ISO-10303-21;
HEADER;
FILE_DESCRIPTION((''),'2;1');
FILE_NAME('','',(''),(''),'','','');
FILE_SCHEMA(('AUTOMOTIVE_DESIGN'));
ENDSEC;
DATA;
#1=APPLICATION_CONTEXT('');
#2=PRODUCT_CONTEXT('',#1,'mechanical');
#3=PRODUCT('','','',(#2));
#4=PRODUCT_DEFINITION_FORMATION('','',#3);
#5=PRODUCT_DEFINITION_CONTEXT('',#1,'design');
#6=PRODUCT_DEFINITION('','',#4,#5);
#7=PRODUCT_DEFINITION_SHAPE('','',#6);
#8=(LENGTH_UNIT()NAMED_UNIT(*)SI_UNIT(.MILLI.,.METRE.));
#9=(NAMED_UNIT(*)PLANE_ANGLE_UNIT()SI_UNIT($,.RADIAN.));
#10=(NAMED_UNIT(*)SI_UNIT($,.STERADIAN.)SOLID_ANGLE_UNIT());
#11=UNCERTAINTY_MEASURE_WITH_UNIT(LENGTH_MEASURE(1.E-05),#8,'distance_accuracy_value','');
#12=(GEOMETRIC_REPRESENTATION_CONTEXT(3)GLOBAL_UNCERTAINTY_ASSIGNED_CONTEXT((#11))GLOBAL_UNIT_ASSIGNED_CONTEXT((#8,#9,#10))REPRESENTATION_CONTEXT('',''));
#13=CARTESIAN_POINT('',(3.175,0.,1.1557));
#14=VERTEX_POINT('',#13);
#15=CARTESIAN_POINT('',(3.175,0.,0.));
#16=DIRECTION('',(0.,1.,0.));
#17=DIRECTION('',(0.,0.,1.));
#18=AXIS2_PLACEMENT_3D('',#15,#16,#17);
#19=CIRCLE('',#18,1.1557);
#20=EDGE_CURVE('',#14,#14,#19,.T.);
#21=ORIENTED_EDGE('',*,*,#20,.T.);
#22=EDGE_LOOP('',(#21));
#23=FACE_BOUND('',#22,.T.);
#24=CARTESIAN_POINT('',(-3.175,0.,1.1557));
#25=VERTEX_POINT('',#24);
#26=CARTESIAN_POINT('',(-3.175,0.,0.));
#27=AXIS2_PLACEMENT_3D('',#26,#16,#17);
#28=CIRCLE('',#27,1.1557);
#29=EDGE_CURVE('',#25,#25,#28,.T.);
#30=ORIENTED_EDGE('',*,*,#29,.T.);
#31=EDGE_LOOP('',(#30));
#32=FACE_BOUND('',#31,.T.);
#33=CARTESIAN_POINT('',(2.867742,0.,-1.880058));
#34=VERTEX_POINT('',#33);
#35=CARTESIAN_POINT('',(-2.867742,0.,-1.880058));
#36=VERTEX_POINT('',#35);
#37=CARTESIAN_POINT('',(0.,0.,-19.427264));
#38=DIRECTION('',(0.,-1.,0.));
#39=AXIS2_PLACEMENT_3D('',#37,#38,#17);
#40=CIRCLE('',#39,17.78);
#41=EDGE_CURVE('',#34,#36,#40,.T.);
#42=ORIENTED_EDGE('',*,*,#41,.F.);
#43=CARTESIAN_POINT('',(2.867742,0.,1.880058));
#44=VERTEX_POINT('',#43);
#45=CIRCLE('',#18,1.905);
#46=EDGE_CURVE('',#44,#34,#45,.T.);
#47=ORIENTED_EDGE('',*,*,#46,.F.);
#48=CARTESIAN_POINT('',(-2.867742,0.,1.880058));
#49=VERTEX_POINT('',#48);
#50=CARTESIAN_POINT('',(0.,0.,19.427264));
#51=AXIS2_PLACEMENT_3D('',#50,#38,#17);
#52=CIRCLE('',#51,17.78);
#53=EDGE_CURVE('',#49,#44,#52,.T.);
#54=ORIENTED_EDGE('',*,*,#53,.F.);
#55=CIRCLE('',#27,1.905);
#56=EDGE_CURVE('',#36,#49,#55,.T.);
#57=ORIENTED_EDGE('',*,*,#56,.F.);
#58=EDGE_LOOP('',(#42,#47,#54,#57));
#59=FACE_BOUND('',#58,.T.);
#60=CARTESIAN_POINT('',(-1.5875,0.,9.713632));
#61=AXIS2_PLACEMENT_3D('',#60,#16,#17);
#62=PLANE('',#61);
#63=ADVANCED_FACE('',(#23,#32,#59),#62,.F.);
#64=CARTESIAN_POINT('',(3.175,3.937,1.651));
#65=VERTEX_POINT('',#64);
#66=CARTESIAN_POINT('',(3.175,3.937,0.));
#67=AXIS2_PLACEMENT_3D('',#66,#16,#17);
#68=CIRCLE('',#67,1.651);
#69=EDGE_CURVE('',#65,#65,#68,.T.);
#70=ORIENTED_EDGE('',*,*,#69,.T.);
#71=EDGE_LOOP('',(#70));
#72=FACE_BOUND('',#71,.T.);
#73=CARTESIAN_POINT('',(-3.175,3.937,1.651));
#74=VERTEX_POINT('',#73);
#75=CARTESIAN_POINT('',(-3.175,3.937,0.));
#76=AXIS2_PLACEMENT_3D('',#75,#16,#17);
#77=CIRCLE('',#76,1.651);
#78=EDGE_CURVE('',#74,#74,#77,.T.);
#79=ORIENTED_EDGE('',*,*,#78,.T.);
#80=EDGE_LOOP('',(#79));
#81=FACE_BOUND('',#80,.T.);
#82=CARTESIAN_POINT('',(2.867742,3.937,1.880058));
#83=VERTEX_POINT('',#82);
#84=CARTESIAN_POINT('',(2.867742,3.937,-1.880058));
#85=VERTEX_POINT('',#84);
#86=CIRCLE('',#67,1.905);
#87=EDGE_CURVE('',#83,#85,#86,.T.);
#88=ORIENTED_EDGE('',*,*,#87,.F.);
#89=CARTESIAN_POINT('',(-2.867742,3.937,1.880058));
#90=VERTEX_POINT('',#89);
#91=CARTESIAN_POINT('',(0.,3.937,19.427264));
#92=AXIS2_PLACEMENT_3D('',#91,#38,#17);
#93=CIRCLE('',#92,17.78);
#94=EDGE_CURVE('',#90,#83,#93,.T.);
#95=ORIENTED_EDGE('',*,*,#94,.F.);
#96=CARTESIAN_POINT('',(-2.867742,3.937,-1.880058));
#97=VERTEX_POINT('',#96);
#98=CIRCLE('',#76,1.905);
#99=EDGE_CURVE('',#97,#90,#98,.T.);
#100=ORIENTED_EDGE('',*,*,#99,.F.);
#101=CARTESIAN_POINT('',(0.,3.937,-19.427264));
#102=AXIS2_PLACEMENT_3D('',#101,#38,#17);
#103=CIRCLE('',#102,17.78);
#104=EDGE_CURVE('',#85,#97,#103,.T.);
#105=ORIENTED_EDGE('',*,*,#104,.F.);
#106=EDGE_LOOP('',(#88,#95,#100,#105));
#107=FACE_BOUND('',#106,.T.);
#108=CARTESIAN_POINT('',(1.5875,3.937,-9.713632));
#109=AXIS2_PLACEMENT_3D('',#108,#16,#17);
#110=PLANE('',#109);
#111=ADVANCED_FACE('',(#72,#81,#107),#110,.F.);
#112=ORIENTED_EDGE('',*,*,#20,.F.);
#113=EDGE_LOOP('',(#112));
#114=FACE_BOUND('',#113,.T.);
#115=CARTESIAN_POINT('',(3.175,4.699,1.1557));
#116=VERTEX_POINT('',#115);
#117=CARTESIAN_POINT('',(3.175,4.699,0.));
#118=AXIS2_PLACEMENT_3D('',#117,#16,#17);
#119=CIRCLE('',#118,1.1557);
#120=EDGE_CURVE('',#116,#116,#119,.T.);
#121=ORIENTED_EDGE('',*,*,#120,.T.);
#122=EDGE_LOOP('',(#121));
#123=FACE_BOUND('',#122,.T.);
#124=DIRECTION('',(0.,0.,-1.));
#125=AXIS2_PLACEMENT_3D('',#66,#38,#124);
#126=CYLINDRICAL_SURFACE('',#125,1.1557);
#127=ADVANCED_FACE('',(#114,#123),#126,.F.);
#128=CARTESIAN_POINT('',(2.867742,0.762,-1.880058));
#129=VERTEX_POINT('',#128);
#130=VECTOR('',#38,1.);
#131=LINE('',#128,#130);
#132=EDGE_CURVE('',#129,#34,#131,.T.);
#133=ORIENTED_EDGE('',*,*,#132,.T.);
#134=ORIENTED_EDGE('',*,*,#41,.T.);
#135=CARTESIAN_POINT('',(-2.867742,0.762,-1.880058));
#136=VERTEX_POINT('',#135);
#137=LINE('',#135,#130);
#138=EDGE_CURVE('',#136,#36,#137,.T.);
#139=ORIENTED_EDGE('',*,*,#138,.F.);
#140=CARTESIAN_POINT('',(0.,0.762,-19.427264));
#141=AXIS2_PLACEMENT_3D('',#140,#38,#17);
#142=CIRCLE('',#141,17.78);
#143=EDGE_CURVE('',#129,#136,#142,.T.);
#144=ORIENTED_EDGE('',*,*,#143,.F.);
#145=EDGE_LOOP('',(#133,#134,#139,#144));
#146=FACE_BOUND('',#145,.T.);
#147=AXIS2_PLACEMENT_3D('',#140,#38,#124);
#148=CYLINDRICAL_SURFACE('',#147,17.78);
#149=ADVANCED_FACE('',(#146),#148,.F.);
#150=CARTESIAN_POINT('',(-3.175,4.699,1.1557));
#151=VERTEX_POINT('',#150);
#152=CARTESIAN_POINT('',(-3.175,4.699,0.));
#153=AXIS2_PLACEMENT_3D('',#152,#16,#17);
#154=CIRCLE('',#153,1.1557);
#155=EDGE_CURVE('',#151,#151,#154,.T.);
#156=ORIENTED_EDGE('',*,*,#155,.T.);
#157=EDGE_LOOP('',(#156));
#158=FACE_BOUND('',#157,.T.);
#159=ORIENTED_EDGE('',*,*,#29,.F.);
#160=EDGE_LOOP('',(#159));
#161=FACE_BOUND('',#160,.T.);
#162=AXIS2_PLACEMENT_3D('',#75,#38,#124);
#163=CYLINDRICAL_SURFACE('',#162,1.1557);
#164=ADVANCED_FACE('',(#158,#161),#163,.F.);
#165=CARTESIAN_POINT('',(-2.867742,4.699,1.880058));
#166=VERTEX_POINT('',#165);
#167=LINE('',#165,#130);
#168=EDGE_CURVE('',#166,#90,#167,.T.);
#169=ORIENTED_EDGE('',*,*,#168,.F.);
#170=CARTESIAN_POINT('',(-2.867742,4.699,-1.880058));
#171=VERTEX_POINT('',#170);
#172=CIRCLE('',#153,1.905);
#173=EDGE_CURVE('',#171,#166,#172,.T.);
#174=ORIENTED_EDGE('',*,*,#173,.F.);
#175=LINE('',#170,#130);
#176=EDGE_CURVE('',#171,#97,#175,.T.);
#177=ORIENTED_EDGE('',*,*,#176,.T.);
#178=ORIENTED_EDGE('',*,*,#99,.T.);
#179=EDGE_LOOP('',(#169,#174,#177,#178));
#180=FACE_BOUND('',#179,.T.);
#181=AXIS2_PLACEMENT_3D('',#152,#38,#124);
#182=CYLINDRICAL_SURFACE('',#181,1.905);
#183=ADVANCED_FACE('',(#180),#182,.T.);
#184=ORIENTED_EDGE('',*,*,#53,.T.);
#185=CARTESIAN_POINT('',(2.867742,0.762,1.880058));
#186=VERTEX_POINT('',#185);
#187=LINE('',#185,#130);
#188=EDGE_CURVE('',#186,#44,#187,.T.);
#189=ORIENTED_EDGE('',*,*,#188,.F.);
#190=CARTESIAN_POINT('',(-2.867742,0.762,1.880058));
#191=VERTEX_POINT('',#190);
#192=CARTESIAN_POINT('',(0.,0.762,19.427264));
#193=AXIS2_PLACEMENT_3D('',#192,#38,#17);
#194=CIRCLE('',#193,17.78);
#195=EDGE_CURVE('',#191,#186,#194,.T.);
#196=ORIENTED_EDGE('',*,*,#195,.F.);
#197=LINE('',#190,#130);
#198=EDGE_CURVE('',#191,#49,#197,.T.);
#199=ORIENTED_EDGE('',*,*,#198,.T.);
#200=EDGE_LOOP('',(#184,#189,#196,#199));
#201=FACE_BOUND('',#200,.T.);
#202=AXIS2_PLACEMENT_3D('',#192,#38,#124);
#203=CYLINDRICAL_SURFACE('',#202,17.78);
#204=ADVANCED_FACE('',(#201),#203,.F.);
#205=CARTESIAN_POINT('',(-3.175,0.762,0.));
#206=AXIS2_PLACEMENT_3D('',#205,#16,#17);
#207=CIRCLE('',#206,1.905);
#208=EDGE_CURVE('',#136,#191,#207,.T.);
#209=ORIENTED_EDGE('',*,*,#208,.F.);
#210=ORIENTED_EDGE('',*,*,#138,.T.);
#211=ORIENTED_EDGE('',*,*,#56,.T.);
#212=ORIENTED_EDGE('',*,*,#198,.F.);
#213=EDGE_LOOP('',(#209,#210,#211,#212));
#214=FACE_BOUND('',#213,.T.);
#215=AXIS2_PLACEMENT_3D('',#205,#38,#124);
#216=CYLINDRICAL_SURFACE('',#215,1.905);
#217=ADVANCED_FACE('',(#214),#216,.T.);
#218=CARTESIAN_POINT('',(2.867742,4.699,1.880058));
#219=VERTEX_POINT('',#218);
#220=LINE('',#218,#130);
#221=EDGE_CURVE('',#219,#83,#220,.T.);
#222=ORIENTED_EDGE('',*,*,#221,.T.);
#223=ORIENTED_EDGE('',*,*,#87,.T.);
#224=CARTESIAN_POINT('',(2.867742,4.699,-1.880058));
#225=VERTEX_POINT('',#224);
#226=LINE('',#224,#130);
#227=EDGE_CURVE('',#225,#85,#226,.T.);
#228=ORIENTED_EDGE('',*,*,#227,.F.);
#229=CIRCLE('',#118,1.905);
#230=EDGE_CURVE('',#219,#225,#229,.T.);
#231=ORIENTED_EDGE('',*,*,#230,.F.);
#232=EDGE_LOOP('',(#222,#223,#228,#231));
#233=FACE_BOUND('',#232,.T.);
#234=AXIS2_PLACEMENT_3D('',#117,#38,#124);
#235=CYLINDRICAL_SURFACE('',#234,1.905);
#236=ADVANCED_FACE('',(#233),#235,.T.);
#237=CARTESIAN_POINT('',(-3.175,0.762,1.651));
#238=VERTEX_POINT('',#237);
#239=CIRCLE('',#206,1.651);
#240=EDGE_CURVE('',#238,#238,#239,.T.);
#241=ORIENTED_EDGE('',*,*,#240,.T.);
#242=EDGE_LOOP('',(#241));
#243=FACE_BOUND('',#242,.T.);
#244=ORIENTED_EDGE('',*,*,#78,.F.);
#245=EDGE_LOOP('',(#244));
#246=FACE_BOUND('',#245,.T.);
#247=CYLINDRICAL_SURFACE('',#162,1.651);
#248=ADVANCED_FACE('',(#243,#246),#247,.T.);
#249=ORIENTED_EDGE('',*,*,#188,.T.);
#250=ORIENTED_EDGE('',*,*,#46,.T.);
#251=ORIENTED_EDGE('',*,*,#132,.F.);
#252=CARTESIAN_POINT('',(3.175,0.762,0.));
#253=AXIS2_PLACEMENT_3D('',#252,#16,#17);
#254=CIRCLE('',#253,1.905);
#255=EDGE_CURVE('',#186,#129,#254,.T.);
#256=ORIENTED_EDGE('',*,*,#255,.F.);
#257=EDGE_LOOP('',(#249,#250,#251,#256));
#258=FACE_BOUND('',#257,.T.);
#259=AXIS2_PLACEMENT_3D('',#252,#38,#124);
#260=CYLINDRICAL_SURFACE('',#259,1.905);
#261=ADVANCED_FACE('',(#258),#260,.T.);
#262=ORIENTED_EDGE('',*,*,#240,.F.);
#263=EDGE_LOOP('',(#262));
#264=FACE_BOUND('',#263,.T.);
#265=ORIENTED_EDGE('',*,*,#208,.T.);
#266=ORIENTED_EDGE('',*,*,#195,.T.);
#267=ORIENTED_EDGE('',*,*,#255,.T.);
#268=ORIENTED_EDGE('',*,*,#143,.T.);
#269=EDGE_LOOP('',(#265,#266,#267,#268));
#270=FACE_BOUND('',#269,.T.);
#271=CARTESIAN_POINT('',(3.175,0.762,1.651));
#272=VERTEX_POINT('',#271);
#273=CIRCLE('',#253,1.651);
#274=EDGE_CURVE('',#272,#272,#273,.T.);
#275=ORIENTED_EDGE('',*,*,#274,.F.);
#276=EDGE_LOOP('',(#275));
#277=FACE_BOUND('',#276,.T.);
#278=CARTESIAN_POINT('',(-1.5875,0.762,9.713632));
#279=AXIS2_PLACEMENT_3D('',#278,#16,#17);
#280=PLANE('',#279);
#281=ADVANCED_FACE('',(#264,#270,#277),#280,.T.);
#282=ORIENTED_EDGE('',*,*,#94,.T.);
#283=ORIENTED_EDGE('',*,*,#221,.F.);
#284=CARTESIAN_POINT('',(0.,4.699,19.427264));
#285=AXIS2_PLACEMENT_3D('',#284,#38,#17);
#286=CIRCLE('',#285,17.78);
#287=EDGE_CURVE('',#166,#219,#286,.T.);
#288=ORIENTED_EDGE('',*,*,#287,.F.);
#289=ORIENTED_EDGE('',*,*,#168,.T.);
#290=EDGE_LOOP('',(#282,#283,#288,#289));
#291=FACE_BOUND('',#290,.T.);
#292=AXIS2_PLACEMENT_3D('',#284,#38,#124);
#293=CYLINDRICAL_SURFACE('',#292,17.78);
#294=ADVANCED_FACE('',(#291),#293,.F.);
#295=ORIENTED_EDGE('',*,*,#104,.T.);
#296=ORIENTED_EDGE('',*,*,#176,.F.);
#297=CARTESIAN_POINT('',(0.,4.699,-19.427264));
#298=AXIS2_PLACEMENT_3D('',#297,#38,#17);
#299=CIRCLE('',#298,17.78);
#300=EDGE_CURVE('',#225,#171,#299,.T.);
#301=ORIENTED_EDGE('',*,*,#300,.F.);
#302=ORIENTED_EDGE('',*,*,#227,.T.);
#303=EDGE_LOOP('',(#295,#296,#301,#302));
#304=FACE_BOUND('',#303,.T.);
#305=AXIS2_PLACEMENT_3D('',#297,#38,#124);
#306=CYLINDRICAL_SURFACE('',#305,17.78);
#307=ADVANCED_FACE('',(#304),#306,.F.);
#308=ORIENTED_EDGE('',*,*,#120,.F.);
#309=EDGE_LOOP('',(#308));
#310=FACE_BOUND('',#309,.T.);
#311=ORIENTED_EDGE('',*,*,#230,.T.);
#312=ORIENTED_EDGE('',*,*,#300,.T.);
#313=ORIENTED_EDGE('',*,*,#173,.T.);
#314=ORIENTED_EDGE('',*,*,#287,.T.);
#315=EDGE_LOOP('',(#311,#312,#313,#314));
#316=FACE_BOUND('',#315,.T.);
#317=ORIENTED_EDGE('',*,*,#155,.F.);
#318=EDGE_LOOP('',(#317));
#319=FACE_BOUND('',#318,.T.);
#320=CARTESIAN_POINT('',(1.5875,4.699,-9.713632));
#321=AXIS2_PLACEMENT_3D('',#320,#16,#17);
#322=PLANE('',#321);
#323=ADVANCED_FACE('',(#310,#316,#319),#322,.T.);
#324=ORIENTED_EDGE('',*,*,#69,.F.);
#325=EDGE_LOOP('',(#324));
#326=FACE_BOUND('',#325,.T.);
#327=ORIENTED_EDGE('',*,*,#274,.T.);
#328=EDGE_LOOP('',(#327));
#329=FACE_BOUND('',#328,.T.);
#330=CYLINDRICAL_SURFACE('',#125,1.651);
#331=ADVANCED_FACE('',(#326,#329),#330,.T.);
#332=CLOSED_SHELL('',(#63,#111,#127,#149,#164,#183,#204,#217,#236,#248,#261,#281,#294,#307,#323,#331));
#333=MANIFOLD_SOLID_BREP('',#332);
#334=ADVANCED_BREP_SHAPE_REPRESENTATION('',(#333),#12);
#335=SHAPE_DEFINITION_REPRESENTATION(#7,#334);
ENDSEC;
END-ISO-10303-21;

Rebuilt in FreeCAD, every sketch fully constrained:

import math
import FreeCAD as App
import Part
import Sketcher
Q = App.Units.Quantity

doc = App.newDocument("Part")
params = doc.addObject("Spreadsheet::Sheet", "Params")
for row, (alias, value) in enumerate([
    ("sketch1_radius", "0.7 in"),
    ("sketch1_radius2", "0.075 in"),
    ("pad1_length", "0.03 in"),
    ("sketch2_diameter", "0.13 in"),
    ("sketch2_diameter2", "0.091 in"),
    ("pad2_length", "0.125 in"),
    ("sketch3_radius", "0.7 in"),
    ("sketch3_radius2", "0.075 in"),
    ("pad3_length", "0.03 in"),
    ("sketch4_diameter", "0.091 in"),
], start=1):
    params.set(f"A{row}", alias)
    params.set(f"B{row}", "=" + value)
    params.setAlias(f"B{row}", alias)

body = doc.addObject("PartDesign::Body", "Body")

sketch1 = doc.addObject("Sketcher::SketchObject", "Sketch")
body.addObject(sketch1)
sketch1.AttachmentSupport = (doc.XZ_Plane, [""])
sketch1.MapMode = "FlatFace"
sketch1.addGeometry(Part.ArcOfCircle(Part.Circle(App.Vector(3.2, 0, 0), App.Vector(0, 0, 1), 1.9), math.radians(-99), math.radians(99)), False)
sketch1.addGeometry(Part.ArcOfCircle(Part.Circle(App.Vector(0, -19.4, 0), App.Vector(0, 0, 1), 17.8), math.radians(80.72), math.radians(99.28)), False)
sketch1.addGeometry(Part.ArcOfCircle(Part.Circle(App.Vector(-3.2, 0, 0), App.Vector(0, 0, 1), 1.9), math.radians(81), math.radians(279)), False)
sketch1.addGeometry(Part.ArcOfCircle(Part.Circle(App.Vector(0, 19.4, 0), App.Vector(0, 0, 1), 17.8), math.radians(-99.28), math.radians(-80.72)), False)
sketch1.addConstraint(Sketcher.Constraint("Tangent", 0, 1, 1, 1))
sketch1.addConstraint(Sketcher.Constraint("Tangent", 1, 2, 2, 2))
sketch1.addConstraint(Sketcher.Constraint("Tangent", 2, 1, 3, 1))
sketch1.addConstraint(Sketcher.Constraint("Tangent", 3, 2, 0, 2))
sketch1.addConstraint(Sketcher.Constraint("Equal", 0, 2))
sketch1.addConstraint(Sketcher.Constraint("Equal", 1, 3))
sketch1.addConstraint(Sketcher.Constraint("Symmetric", 0, 3, 2, 3, -1, 1))
sketch1.addConstraint(Sketcher.Constraint("PointOnObject", 0, 3, -1))
sketch1.addConstraint(Sketcher.Constraint("Radius", 1, Q("0.7 in")))
sketch1.addConstraint(Sketcher.Constraint("Radius", 0, Q("0.075 in")))
sketch1.addConstraint(Sketcher.Constraint("DistanceX", 2, 3, 0, 3, Q("0.25 in")))
sketch1.setExpression("Constraints[8]", "Params.sketch1_radius")
sketch1.setExpression("Constraints[9]", "Params.sketch1_radius2")
pad1 = doc.addObject("PartDesign::Pad", "Pad")
body.addObject(pad1)
pad1.Profile = sketch1
pad1.setExpression("Length", "Params.pad1_length")
pad1.Reversed = True

sketch2 = doc.addObject("Sketcher::SketchObject", "Sketch001")
body.addObject(sketch2)
sketch2.AttachmentSupport = (doc.XZ_Plane, [""])
sketch2.MapMode = "FlatFace"
sketch2.AttachmentOffset = App.Placement(App.Vector(0, 0, -0.03 * 25.4), App.Rotation())
sketch2.addGeometry(Part.Circle(App.Vector(-3.2, 0, 0), App.Vector(0, 0, 1), 1.7), False)
sketch2.addGeometry(Part.Circle(App.Vector(-3.2, 0, 0), App.Vector(0, 0, 1), 1.2), False)
sketch2.addGeometry(Part.Circle(App.Vector(3.2, 0, 0), App.Vector(0, 0, 1), 1.7), False)
sketch2.addGeometry(Part.Circle(App.Vector(3.2, 0, 0), App.Vector(0, 0, 1), 1.2), False)
sketch2.addConstraint(Sketcher.Constraint("Coincident", 1, 3, 0, 3))
sketch2.addConstraint(Sketcher.Constraint("Coincident", 3, 3, 2, 3))
sketch2.addConstraint(Sketcher.Constraint("Equal", 0, 2))
sketch2.addConstraint(Sketcher.Constraint("Equal", 1, 3))
sketch2.addConstraint(Sketcher.Constraint("Symmetric", 0, 3, 2, 3, -1, 1))
sketch2.addConstraint(Sketcher.Constraint("PointOnObject", 0, 3, -1))
sketch2.addConstraint(Sketcher.Constraint("Diameter", 0, Q("0.13 in")))
sketch2.addConstraint(Sketcher.Constraint("Diameter", 1, Q("0.091 in")))
sketch2.addConstraint(Sketcher.Constraint("DistanceX", 0, 3, 2, 3, Q("0.25 in")))
sketch2.setExpression("Constraints[6]", "Params.sketch2_diameter")
sketch2.setExpression("Constraints[7]", "Params.sketch2_diameter2")
pad2 = doc.addObject("PartDesign::Pad", "Pad001")
body.addObject(pad2)
pad2.Profile = sketch2
pad2.setExpression("Length", "Params.pad2_length")
pad2.Reversed = True

sketch3 = doc.addObject("Sketcher::SketchObject", "Sketch002")
body.addObject(sketch3)
sketch3.AttachmentSupport = (doc.XZ_Plane, [""])
sketch3.MapMode = "FlatFace"
sketch3.AttachmentOffset = App.Placement(App.Vector(0, 0, -0.155 * 25.4), App.Rotation())
sketch3.addGeometry(Part.ArcOfCircle(Part.Circle(App.Vector(0, 19.4, 0), App.Vector(0, 0, 1), 17.8), math.radians(-99.28), math.radians(-80.72)), False)
sketch3.addGeometry(Part.ArcOfCircle(Part.Circle(App.Vector(3.2, 0, 0), App.Vector(0, 0, 1), 1.9), math.radians(-99), math.radians(99)), False)
sketch3.addGeometry(Part.ArcOfCircle(Part.Circle(App.Vector(0, -19.4, 0), App.Vector(0, 0, 1), 17.8), math.radians(80.72), math.radians(99.28)), False)
sketch3.addGeometry(Part.ArcOfCircle(Part.Circle(App.Vector(-3.2, 0, 0), App.Vector(0, 0, 1), 1.9), math.radians(81), math.radians(279)), False)
sketch3.addConstraint(Sketcher.Constraint("Tangent", 0, 2, 1, 2))
sketch3.addConstraint(Sketcher.Constraint("Tangent", 1, 1, 2, 1))
sketch3.addConstraint(Sketcher.Constraint("Tangent", 2, 2, 3, 2))
sketch3.addConstraint(Sketcher.Constraint("Tangent", 3, 1, 0, 1))
sketch3.addConstraint(Sketcher.Constraint("Equal", 0, 2))
sketch3.addConstraint(Sketcher.Constraint("Equal", 1, 3))
sketch3.addConstraint(Sketcher.Constraint("Symmetric", 0, 3, 2, 3, -1, 1))
sketch3.addConstraint(Sketcher.Constraint("PointOnObject", 0, 3, -2))
sketch3.addConstraint(Sketcher.Constraint("Radius", 0, Q("0.7 in")))
sketch3.addConstraint(Sketcher.Constraint("Radius", 1, Q("0.075 in")))
sketch3.addConstraint(Sketcher.Constraint("DistanceX", 3, 3, 1, 3, Q("0.25 in")))
sketch3.setExpression("Constraints[8]", "Params.sketch3_radius")
sketch3.setExpression("Constraints[9]", "Params.sketch3_radius2")
pad3 = doc.addObject("PartDesign::Pad", "Pad002")
body.addObject(pad3)
pad3.Profile = sketch3
pad3.setExpression("Length", "Params.pad3_length")
pad3.Reversed = True

sketch4 = doc.addObject("Sketcher::SketchObject", "Sketch003")
body.addObject(sketch4)
sketch4.AttachmentSupport = (doc.XZ_Plane, [""])
sketch4.MapMode = "FlatFace"
sketch4.AttachmentOffset = App.Placement(App.Vector(0, 0, -0.03 * 25.4), App.Rotation())
sketch4.addGeometry(Part.Circle(App.Vector(3.2, 0, 0), App.Vector(0, 0, 1), 1.2), False)
sketch4.addGeometry(Part.Circle(App.Vector(-3.2, 0, 0), App.Vector(0, 0, 1), 1.2), False)
sketch4.addConstraint(Sketcher.Constraint("Equal", 0, 1))
sketch4.addConstraint(Sketcher.Constraint("Symmetric", 0, 3, 1, 3, -1, 1))
sketch4.addConstraint(Sketcher.Constraint("PointOnObject", 0, 3, -1))
sketch4.addConstraint(Sketcher.Constraint("Diameter", 0, Q("0.091 in")))
sketch4.addConstraint(Sketcher.Constraint("DistanceX", 1, 3, 0, 3, Q("0.25 in")))
sketch4.setExpression("Constraints[3]", "Params.sketch4_diameter")
pocket1 = doc.addObject("PartDesign::Pocket", "Pocket")
body.addObject(pocket1)
pocket1.Profile = sketch4
pocket1.Type = "ThroughAll"
pocket1.Midplane = True

doc.recompute()
